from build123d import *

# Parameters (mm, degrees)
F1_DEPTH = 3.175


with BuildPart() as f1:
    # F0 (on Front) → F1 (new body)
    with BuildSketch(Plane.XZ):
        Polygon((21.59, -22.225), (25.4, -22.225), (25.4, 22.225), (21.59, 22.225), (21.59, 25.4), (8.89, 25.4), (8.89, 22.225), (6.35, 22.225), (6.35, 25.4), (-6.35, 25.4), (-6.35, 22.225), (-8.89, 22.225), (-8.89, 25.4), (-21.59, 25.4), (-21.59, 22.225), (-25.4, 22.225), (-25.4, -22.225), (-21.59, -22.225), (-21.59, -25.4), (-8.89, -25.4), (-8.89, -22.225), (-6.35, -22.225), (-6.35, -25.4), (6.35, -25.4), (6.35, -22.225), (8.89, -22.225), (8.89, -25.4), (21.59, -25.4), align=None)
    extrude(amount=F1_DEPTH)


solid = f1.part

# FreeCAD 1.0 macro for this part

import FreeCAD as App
import Part
import Sketcher
from FreeCAD import Vector
Q = App.Units.Quantity


def add_polygon(sketch, points):
    """Adds a closed chain of lines whose ends are joined by coincident constraints."""
    first, n = sketch.GeometryCount, len(points)
    for a, b in zip(points, points[1:] + points[:1]):
        sketch.addGeometry(Part.LineSegment(App.Vector(*a, 0), App.Vector(*b, 0)), False)
    for i in range(n):
        sketch.addConstraint(Sketcher.Constraint("Coincident", first + i, 2, first + (i + 1) % n, 1))

doc = App.newDocument("Part")
body = doc.addObject("PartDesign::Body", "Body")

# Sketch on XZ plane
sketch1 = body.newObject("Sketcher::SketchObject", "Sketch")
sketch1.AttachmentSupport = (doc.getObject("XZ_Plane"), [""])
sketch1.MapMode = "FlatFace"
add_polygon(sketch1, [(21.6, -22.2), (25.4, -22.2), (25.4, 22.2), (21.6, 22.2), (21.6, 25.4), (8.9, 25.4), (8.9, 22.2), (6.3, 22.2), (6.3, 25.4), (-6.3, 25.4), (-6.3, 22.2), (-8.9, 22.2), (-8.9, 25.4), (-21.6, 25.4), (-21.6, 22.2), (-25.4, 22.2), (-25.4, -22.2), (-21.6, -22.2), (-21.6, -25.4), (-8.9, -25.4), (-8.9, -22.2), (-6.3, -22.2), (-6.3, -25.4), (6.3, -25.4), (6.3, -22.2), (8.9, -22.2), (8.9, -25.4), (21.6, -25.4)])  # lines 0-27
sketch1.addConstraint([
    Sketcher.Constraint("Horizontal", 0),
    Sketcher.Constraint("Vertical", 1),
    Sketcher.Constraint("Horizontal", 2),
    Sketcher.Constraint("Vertical", 3),
    Sketcher.Constraint("Horizontal", 4),
    Sketcher.Constraint("Vertical", 5),
    Sketcher.Constraint("Horizontal", 6),
    Sketcher.Constraint("Vertical", 7),
    Sketcher.Constraint("Horizontal", 8),
    Sketcher.Constraint("Vertical", 9),
    Sketcher.Constraint("Horizontal", 10),
    Sketcher.Constraint("Vertical", 11),
    Sketcher.Constraint("Horizontal", 12),
    Sketcher.Constraint("Vertical", 13),
    Sketcher.Constraint("Horizontal", 14),
    Sketcher.Constraint("Vertical", 15),
    Sketcher.Constraint("Horizontal", 16),
    Sketcher.Constraint("Vertical", 17),
    Sketcher.Constraint("Horizontal", 18),
    Sketcher.Constraint("Vertical", 19),
    Sketcher.Constraint("Horizontal", 20),
    Sketcher.Constraint("Vertical", 21),
    Sketcher.Constraint("Horizontal", 22),
    Sketcher.Constraint("Vertical", 23),
    Sketcher.Constraint("Horizontal", 24),
    Sketcher.Constraint("Vertical", 25),
    Sketcher.Constraint("Horizontal", 26),
    Sketcher.Constraint("Vertical", 27),
    Sketcher.Constraint("Symmetric", 0, 2, 14, 2, -1, 1),
    Sketcher.Constraint("Symmetric", 2, 2, 16, 2, -1, 1),
    Sketcher.Constraint("Symmetric", 4, 2, 18, 2, -1, 1),
    Sketcher.Constraint("Symmetric", 6, 2, 20, 2, -1, 1),
    Sketcher.Constraint("Symmetric", 8, 2, 22, 2, -1, 1),
    Sketcher.Constraint("Symmetric", 10, 2, 24, 2, -1, 1),
    Sketcher.Constraint("Symmetric", 12, 2, 26, 2, -1, 1),
    Sketcher.Constraint("Symmetric", 6, 2, 9, 2, -2),
    Sketcher.Constraint("Symmetric", 4, 2, 11, 2, -2),
    Sketcher.Constraint("Symmetric", 2, 2, 13, 2, -2),
    Sketcher.Constraint("Horizontal", 2, 2, 5, 2),
    Sketcher.Constraint("Horizontal", 4, 2, 7, 2),
    Sketcher.Constraint("Equal", 4, 8),
    Sketcher.Constraint("DistanceX", 4, 2, 4, 1, Q("0.5 in")),
    Sketcher.Constraint("DistanceX", 6, 2, 6, 1, Q("0.1 in")),
    Sketcher.Constraint("DistanceX", -1, 1, 0, 2, Q("1 in")),
    Sketcher.Constraint("DistanceY", -1, 1, 3, 2, Q("1 in")),
    Sketcher.Constraint("DistanceY", 1, 1, 1, 2, Q("1.75 in")),
])
pad1 = body.newObject("PartDesign::Pad", "Pad")
pad1.Profile = sketch1
pad1.Length = Q("0.125 in")

doc.recompute()
